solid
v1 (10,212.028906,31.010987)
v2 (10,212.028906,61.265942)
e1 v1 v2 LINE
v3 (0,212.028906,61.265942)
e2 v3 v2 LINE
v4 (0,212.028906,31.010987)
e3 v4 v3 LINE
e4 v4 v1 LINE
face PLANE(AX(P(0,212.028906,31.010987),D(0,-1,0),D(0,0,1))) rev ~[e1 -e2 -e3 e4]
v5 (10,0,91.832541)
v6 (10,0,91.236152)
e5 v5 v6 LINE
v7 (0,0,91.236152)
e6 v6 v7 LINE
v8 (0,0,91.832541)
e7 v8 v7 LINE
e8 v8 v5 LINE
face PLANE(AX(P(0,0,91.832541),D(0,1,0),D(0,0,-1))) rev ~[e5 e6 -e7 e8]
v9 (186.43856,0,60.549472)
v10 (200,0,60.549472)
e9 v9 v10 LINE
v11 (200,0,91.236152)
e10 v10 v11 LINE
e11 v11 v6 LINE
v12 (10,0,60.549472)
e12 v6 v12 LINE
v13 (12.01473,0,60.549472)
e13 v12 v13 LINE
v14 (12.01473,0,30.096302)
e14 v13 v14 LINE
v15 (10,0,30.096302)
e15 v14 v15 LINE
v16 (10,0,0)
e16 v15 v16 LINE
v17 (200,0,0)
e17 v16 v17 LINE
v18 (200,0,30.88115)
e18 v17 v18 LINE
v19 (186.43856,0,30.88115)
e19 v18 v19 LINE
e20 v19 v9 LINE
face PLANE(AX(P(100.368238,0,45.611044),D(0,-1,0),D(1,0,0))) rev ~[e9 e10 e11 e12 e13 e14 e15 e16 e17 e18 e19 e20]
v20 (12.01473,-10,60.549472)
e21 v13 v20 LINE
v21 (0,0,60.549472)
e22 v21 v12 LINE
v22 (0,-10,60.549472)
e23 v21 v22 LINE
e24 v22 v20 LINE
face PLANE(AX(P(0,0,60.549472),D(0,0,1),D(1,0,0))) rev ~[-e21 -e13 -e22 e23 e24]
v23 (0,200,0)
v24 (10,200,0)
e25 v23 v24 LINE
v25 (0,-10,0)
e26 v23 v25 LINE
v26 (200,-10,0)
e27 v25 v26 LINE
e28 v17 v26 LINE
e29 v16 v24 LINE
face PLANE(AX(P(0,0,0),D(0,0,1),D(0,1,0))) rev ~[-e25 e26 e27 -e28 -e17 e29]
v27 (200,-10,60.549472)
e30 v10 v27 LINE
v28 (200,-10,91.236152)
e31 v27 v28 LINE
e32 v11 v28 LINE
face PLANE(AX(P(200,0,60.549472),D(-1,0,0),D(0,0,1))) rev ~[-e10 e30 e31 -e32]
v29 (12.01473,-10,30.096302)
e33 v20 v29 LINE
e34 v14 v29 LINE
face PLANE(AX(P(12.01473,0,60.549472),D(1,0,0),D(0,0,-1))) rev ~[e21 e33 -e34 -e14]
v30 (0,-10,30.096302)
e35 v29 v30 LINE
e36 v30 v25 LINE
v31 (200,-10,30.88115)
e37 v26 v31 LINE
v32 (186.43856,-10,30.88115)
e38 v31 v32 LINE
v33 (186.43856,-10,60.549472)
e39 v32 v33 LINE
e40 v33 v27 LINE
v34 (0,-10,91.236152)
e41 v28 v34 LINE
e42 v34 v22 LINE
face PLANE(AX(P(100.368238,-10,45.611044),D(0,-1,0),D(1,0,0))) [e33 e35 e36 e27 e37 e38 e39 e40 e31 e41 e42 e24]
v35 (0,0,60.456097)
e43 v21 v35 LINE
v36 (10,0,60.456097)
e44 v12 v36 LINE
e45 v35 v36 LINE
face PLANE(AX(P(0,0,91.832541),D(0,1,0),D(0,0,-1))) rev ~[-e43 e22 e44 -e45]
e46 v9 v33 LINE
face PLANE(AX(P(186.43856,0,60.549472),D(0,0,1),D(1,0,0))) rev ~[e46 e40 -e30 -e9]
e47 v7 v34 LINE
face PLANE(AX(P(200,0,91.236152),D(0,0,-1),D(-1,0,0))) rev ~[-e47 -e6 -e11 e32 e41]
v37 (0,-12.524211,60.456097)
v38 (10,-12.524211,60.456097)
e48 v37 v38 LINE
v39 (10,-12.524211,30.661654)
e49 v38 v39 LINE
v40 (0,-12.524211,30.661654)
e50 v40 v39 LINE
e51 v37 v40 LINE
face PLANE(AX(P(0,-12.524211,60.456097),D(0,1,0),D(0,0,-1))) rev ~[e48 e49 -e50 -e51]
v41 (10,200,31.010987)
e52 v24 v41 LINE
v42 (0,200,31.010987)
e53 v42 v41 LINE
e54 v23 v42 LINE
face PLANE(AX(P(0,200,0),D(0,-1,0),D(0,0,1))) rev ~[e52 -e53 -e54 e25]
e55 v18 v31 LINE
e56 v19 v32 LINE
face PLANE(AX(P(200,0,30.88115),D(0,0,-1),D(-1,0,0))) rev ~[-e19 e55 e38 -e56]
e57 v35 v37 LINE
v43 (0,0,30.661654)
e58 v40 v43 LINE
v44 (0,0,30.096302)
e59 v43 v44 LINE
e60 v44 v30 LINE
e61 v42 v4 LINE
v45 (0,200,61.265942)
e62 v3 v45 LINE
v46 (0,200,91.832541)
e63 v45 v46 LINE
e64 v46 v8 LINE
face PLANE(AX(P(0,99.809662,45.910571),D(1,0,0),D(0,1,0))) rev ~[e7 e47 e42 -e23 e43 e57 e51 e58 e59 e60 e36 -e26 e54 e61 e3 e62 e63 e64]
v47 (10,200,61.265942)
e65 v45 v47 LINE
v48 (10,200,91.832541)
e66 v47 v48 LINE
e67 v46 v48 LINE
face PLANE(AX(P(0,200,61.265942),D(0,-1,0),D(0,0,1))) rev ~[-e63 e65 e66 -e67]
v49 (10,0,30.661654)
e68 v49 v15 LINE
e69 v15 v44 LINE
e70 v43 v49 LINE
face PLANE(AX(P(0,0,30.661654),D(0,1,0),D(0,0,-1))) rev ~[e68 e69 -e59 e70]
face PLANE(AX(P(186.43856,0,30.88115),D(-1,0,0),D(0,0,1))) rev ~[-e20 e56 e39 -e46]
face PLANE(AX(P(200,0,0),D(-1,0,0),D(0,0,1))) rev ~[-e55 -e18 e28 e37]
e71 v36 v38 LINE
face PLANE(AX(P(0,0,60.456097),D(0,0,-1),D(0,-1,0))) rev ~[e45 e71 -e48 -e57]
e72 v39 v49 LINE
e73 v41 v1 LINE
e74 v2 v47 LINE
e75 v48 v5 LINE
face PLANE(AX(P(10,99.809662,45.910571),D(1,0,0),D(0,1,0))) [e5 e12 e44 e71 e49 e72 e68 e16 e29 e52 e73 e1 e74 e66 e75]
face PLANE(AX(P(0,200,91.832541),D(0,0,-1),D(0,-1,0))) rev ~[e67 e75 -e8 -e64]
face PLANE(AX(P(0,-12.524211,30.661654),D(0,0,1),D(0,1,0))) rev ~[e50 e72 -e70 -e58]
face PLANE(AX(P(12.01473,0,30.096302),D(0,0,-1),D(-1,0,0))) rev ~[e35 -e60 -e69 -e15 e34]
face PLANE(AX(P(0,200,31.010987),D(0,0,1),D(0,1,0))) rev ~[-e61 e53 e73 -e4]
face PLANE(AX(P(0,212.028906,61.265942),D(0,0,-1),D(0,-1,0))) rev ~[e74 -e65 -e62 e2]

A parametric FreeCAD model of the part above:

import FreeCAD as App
import Part
import Sketcher

doc = App.newDocument("Part")
params = doc.addObject("Spreadsheet::Sheet", "Params")
for row, (alias, value) in enumerate([
    ("sketch1_width", "200 mm"),
    ("pad1_length", "10 mm"),
    ("sketch2_width", "200 mm"),
    ("pad2_length", "10 mm"),
], start=1):
    params.set(f"A{row}", alias)
    params.set(f"B{row}", "=" + value)
    params.setAlias(f"B{row}", alias)

body = doc.addObject("PartDesign::Body", "Body")

# Sketch on XZ plane
sketch1 = body.newObject("Sketcher::SketchObject", "Sketch")
sketch1.AttachmentSupport = (doc.getObject("XZ_Plane"), [""])
sketch1.MapMode = "FlatFace"
sketch1.addGeometry([
    Part.LineSegment(App.Vector(0, 30, 0), App.Vector(0, 0, 0)),  # 0
    Part.LineSegment(App.Vector(0, 0, 0), App.Vector(200, 0, 0)),  # 1
    Part.LineSegment(App.Vector(200, 0, 0), App.Vector(200, 31, 0)),  # 2
    Part.LineSegment(App.Vector(200, 31, 0), App.Vector(186, 31, 0)),  # 3
    Part.LineSegment(App.Vector(186, 31, 0), App.Vector(186, 61, 0)),  # 4
    Part.LineSegment(App.Vector(186, 61, 0), App.Vector(200, 61, 0)),  # 5
    Part.LineSegment(App.Vector(200, 61, 0), App.Vector(200, 91, 0)),  # 6
    Part.LineSegment(App.Vector(200, 91, 0), App.Vector(0, 91, 0)),  # 7
    Part.LineSegment(App.Vector(0, 91, 0), App.Vector(0, 61, 0)),  # 8
    Part.LineSegment(App.Vector(0, 61, 0), App.Vector(12, 61, 0)),  # 9
    Part.LineSegment(App.Vector(12, 61, 0), App.Vector(12, 30, 0)),  # 10
    Part.LineSegment(App.Vector(12, 30, 0), App.Vector(0, 30, 0)),  # 11
], False)
sketch1.addConstraint([
    Sketcher.Constraint("Coincident", 0, 2, 1, 1),
    Sketcher.Constraint("Coincident", 1, 2, 2, 1),
    Sketcher.Constraint("Coincident", 2, 2, 3, 1),
    Sketcher.Constraint("Coincident", 3, 2, 4, 1),
    Sketcher.Constraint("Coincident", 4, 2, 5, 1),
    Sketcher.Constraint("Coincident", 5, 2, 6, 1),
    Sketcher.Constraint("Coincident", 6, 2, 7, 1),
    Sketcher.Constraint("Coincident", 7, 2, 8, 1),
    Sketcher.Constraint("Coincident", 8, 2, 9, 1),
    Sketcher.Constraint("Coincident", 9, 2, 10, 1),
    Sketcher.Constraint("Coincident", 10, 2, 11, 1),
    Sketcher.Constraint("Coincident", 11, 2, 0, 1),
    Sketcher.Constraint("Vertical", 0),
    Sketcher.Constraint("Horizontal", 1),
    Sketcher.Constraint("Vertical", 2),
    Sketcher.Constraint("Horizontal", 3),
    Sketcher.Constraint("Vertical", 4),
    Sketcher.Constraint("Horizontal", 5),
    Sketcher.Constraint("Vertical", 6),
    Sketcher.Constraint("Horizontal", 7),
    Sketcher.Constraint("Vertical", 8),
    Sketcher.Constraint("Horizontal", 9),
    Sketcher.Constraint("Vertical", 10),
    Sketcher.Constraint("Horizontal", 11),
    Sketcher.Constraint("Coincident", 0, 2, -1, 1),
    Sketcher.Constraint("PointOnObject", 7, 2, -2),
    Sketcher.Constraint("Horizontal", 5, 2, 8, 2),
    Sketcher.Constraint("Vertical", 2, 2, 5, 2),
    Sketcher.Constraint("DistanceX", 1, 1, 1, 2, 200.0),
    Sketcher.Constraint("DistanceX", 3, 2, 3, 1, 13.56144),
    Sketcher.Constraint("DistanceX", 9, 1, 9, 2, 12.01473),
    Sketcher.Constraint("DistanceY", 2, 1, 2, 2, 30.88115),
    Sketcher.Constraint("DistanceY", 4, 1, 4, 2, 29.668322),
    Sketcher.Constraint("DistanceY", 6, 1, 6, 2, 30.68668),
    Sketcher.Constraint("DistanceY", 10, 2, 10, 1, 30.45317),
])
sketch1.setExpression("Constraints[28]", "Params.sketch1_width")
pad1 = body.newObject("PartDesign::Pad", "Pad")
pad1.Profile = sketch1
pad1.setExpression("Length", "Params.pad1_length")

# Sketch on YZ plane
sketch2 = body.newObject("Sketcher::SketchObject", "Sketch001")
sketch2.AttachmentSupport = (doc.getObject("YZ_Plane"), [""])
sketch2.MapMode = "FlatFace"
sketch2.addGeometry([
    Part.LineSegment(App.Vector(0, 31, 0), App.Vector(0, 0, 0)),  # 0
    Part.LineSegment(App.Vector(0, 0, 0), App.Vector(200, 0, 0)),  # 1
    Part.LineSegment(App.Vector(200, 0, 0), App.Vector(200, 31, 0)),  # 2
    Part.LineSegment(App.Vector(200, 31, 0), App.Vector(212, 31, 0)),  # 3
    Part.LineSegment(App.Vector(212, 31, 0), App.Vector(212, 61, 0)),  # 4
    Part.LineSegment(App.Vector(212, 61, 0), App.Vector(200, 61, 0)),  # 5
    Part.LineSegment(App.Vector(200, 61, 0), App.Vector(200, 92, 0)),  # 6
    Part.LineSegment(App.Vector(200, 92, 0), App.Vector(0, 92, 0)),  # 7
    Part.LineSegment(App.Vector(0, 92, 0), App.Vector(0, 60, 0)),  # 8
    Part.LineSegment(App.Vector(0, 60, 0), App.Vector(-13, 60, 0)),  # 9
    Part.LineSegment(App.Vector(-13, 60, 0), App.Vector(-13, 31, 0)),  # 10
    Part.LineSegment(App.Vector(-13, 31, 0), App.Vector(0, 31, 0)),  # 11
], False)
sketch2.addConstraint([
    Sketcher.Constraint("Coincident", 0, 2, 1, 1),
    Sketcher.Constraint("Coincident", 1, 2, 2, 1),
    Sketcher.Constraint("Coincident", 2, 2, 3, 1),
    Sketcher.Constraint("Coincident", 3, 2, 4, 1),
    Sketcher.Constraint("Coincident", 4, 2, 5, 1),
    Sketcher.Constraint("Coincident", 5, 2, 6, 1),
    Sketcher.Constraint("Coincident", 6, 2, 7, 1),
    Sketcher.Constraint("Coincident", 7, 2, 8, 1),
    Sketcher.Constraint("Coincident", 8, 2, 9, 1),
    Sketcher.Constraint("Coincident", 9, 2, 10, 1),
    Sketcher.Constraint("Coincident", 10, 2, 11, 1),
    Sketcher.Constraint("Coincident", 11, 2, 0, 1),
    Sketcher.Constraint("Vertical", 0),
    Sketcher.Constraint("Horizontal", 1),
    Sketcher.Constraint("Vertical", 2),
    Sketcher.Constraint("Horizontal", 3),
    Sketcher.Constraint("Vertical", 4),
    Sketcher.Constraint("Horizontal", 5),
    Sketcher.Constraint("Vertical", 6),
    Sketcher.Constraint("Horizontal", 7),
    Sketcher.Constraint("Vertical", 8),
    Sketcher.Constraint("Horizontal", 9),
    Sketcher.Constraint("Vertical", 10),
    Sketcher.Constraint("Horizontal", 11),
    Sketcher.Constraint("Coincident", 0, 2, -1, 1),
    Sketcher.Constraint("PointOnObject", 7, 2, -2),
    Sketcher.Constraint("Vertical", 2, 2, 5, 2),
    Sketcher.Constraint("DistanceX", 1, 1, 1, 2, 200.0),
    Sketcher.Constraint("DistanceY", 6, 1, 6, 2, 30.566599),
    Sketcher.Constraint("DistanceX", 9, 2, 9, 1, 12.524211),
    Sketcher.Constraint("DistanceX", 3, 1, 3, 2, 12.028906),
    Sketcher.Constraint("DistanceY", 0, 2, 0, 1, 30.661654),
    Sketcher.Constraint("DistanceY", 2, 1, 2, 2, 31.010987),
    Sketcher.Constraint("DistanceY", 4, 1, 4, 2, 30.254955),
    Sketcher.Constraint("DistanceY", 8, 2, 8, 1, 31.376444),
])
sketch2.setExpression("Constraints[27]", "Params.sketch2_width")
pad2 = body.newObject("PartDesign::Pad", "Pad001")
pad2.Profile = sketch2
pad2.setExpression("Length", "Params.pad2_length")

doc.recompute()
